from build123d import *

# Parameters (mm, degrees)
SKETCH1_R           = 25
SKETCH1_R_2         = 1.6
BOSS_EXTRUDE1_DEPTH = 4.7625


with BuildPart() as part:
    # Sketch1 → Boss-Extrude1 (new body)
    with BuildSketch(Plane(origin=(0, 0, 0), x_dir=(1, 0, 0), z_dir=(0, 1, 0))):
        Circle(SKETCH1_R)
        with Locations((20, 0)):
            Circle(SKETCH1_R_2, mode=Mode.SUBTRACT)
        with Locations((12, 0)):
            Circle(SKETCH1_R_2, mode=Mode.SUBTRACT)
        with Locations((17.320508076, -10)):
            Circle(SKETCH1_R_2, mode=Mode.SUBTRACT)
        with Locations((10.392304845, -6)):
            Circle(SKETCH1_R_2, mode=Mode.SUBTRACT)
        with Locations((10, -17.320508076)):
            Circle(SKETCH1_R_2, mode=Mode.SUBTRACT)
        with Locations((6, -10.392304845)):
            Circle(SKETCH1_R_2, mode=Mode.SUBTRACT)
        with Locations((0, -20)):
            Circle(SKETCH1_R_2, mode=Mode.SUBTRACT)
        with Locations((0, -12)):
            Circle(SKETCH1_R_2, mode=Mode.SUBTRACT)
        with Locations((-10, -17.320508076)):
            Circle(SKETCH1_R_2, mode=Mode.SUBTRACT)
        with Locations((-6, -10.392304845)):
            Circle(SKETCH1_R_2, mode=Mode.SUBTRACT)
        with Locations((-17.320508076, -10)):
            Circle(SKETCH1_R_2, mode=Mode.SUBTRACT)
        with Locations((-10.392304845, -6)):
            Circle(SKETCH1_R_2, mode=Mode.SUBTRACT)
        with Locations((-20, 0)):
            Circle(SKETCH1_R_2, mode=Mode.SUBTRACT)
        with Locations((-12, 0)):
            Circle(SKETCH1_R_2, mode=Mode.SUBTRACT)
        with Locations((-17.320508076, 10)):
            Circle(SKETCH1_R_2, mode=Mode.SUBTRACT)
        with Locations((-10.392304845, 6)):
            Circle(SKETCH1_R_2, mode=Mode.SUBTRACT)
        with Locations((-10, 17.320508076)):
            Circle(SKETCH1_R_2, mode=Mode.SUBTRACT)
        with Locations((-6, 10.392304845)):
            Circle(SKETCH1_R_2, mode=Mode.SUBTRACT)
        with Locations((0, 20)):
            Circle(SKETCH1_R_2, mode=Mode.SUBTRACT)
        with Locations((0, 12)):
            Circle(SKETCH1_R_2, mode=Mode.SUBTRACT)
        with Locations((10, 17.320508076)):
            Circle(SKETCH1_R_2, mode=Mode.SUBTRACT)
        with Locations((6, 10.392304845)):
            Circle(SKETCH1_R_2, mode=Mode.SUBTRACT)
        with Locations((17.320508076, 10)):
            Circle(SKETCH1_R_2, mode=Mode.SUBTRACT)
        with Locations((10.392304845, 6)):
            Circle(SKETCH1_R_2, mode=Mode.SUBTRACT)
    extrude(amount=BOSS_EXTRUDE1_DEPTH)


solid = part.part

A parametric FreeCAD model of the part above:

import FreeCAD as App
import Part
import Sketcher
from FreeCAD import Vector
Q = App.Units.Quantity

doc = App.newDocument("Part")
body = doc.addObject("PartDesign::Body", "Body")

sketch1 = body.newObject("Sketcher::SketchObject", "Sketch")
sketch1.AttachmentSupport = (doc.getObject("XZ_Plane"), [""])
sketch1.MapMode = "FlatFace"
sketch1.addGeometry([
    Part.Circle(Vector(0, 0, 0), Vector(0, 0, 1), 25),
    Part.Circle(Vector(-10, 17.3, 0), Vector(0, 0, 1), 1.6),
    Part.Circle(Vector(-17.3, 10, 0), Vector(0, 0, 1), 1.6),
    Part.Circle(Vector(-6, 10.4, 0), Vector(0, 0, 1), 1.6),
    Part.Circle(Vector(-10.4, 6, 0), Vector(0, 0, 1), 1.6),
    Part.Circle(Vector(0, 20, 0), Vector(0, 0, 1), 1.6),
    Part.Circle(Vector(10, 17.3, 0), Vector(0, 0, 1), 1.6),
    Part.Circle(Vector(0, 12, 0), Vector(0, 0, 1), 1.6),
    Part.Circle(Vector(6, 10.4, 0), Vector(0, 0, 1), 1.6),
    Part.Circle(Vector(10.4, 6, 0), Vector(0, 0, 1), 1.6),
    Part.Circle(Vector(17.3, 10, 0), Vector(0, 0, 1), 1.6),
    Part.Circle(Vector(-20, 0, 0), Vector(0, 0, 1), 1.6),
    Part.Circle(Vector(-12, 0, 0), Vector(0, 0, 1), 1.6),
    Part.Circle(Vector(-17.3, -10, 0), Vector(0, 0, 1), 1.6),
    Part.Circle(Vector(-10.4, -6, 0), Vector(0, 0, 1), 1.6),
    Part.Circle(Vector(-6, -10.4, 0), Vector(0, 0, 1), 1.6),
    Part.Circle(Vector(-10, -17.3, 0), Vector(0, 0, 1), 1.6),
    Part.Circle(Vector(10.4, -6, 0), Vector(0, 0, 1), 1.6),
    Part.Circle(Vector(6, -10.4, 0), Vector(0, 0, 1), 1.6),
    Part.Circle(Vector(12, 0, 0), Vector(0, 0, 1), 1.6),
    Part.Circle(Vector(20, 0, 0), Vector(0, 0, 1), 1.6),
    Part.Circle(Vector(17.3, -10, 0), Vector(0, 0, 1), 1.6),
    Part.Circle(Vector(0, -12, 0), Vector(0, 0, 1), 1.6),
    Part.Circle(Vector(0, -20, 0), Vector(0, 0, 1), 1.6),
    Part.Circle(Vector(10, -17.3, 0), Vector(0, 0, 1), 1.6),
], False)
sketch1.addConstraint([
    Sketcher.Constraint("Coincident", 0, 3, -1, 1),
    Sketcher.Constraint("Equal", 1, 2),
    Sketcher.Constraint("Equal", 2, 3),
    Sketcher.Constraint("Equal", 3, 4),
    Sketcher.Constraint("Equal", 4, 5),
    Sketcher.Constraint("Equal", 5, 6),
    Sketcher.Constraint("Equal", 6, 7),
    Sketcher.Constraint("Equal", 7, 8),
    Sketcher.Constraint("Equal", 8, 9),
    Sketcher.Constraint("Equal", 9, 10),
    Sketcher.Constraint("Equal", 10, 11),
    Sketcher.Constraint("Equal", 11, 12),
    Sketcher.Constraint("Equal", 12, 13),
    Sketcher.Constraint("Equal", 13, 14),
    Sketcher.Constraint("Equal", 14, 15),
    Sketcher.Constraint("Equal", 15, 16),
    Sketcher.Constraint("Equal", 16, 17),
    Sketcher.Constraint("Equal", 17, 18),
    Sketcher.Constraint("Equal", 18, 19),
    Sketcher.Constraint("Equal", 19, 20),
    Sketcher.Constraint("Equal", 20, 21),
    Sketcher.Constraint("Equal", 21, 22),
    Sketcher.Constraint("Equal", 22, 23),
    Sketcher.Constraint("Equal", 23, 24),
    Sketcher.Constraint("Symmetric", 10, 3, 13, 3, -1, 1),
    Sketcher.Constraint("Symmetric", 9, 3, 14, 3, -1, 1),
    Sketcher.Constraint("Symmetric", 8, 3, 15, 3, -1, 1),
    Sketcher.Constraint("Symmetric", 6, 3, 16, 3, -1, 1),
    Sketcher.Constraint("Symmetric", 4, 3, 17, 3, -1, 1),
    Sketcher.Constraint("Symmetric", 3, 3, 18, 3, -1, 1),
    Sketcher.Constraint("Symmetric", 12, 3, 19, 3, -1, 1),
    Sketcher.Constraint("Symmetric", 11, 3, 20, 3, -1, 1),
    Sketcher.Constraint("Symmetric", 2, 3, 21, 3, -1, 1),
    Sketcher.Constraint("Symmetric", 7, 3, 22, 3, -1, 1),
    Sketcher.Constraint("Symmetric", 5, 3, 23, 3, -1, 1),
    Sketcher.Constraint("Symmetric", 1, 3, 24, 3, -1, 1),
    Sketcher.Constraint("Symmetric", 1, 3, 6, 3, -2),
    Sketcher.Constraint("Symmetric", 3, 3, 8, 3, -2),
    Sketcher.Constraint("Symmetric", 4, 3, 9, 3, -2),
    Sketcher.Constraint("Symmetric", 2, 3, 10, 3, -2),
    Sketcher.Constraint("PointOnObject", 5, 3, -2),
    Sketcher.Constraint("PointOnObject", 7, 3, -2),
    Sketcher.Constraint("PointOnObject", 11, 3, -1),
    Sketcher.Constraint("PointOnObject", 12, 3, -1),
    Sketcher.Constraint("Diameter", 0, Q("50 mm")),
    Sketcher.Constraint("Diameter", 1, Q("3.2 mm")),
    Sketcher.Constraint("DistanceX", 1, 3, -1, 1, Q("10 mm")),
    Sketcher.Constraint("DistanceY", -1, 1, 2, 3, Q("10 mm")),
    Sketcher.Constraint("DistanceX", 3, 3, -1, 1, Q("6 mm")),
    Sketcher.Constraint("DistanceY", -1, 1, 4, 3, Q("6 mm")),
    Sketcher.Constraint("DistanceY", -1, 1, 5, 3, Q("20 mm")),
    Sketcher.Constraint("DistanceY", -1, 1, 7, 3, Q("12 mm")),
    Sketcher.Constraint("DistanceX", 11, 3, -1, 1, Q("20 mm")),
    Sketcher.Constraint("DistanceX", 12, 3, -1, 1, Q("12 mm")),
    Sketcher.Constraint("DistanceY", -1, 1, 1, 3, Q("17.320508 mm")),
    Sketcher.Constraint("DistanceX", 2, 3, -1, 1, Q("17.320508 mm")),
    Sketcher.Constraint("DistanceY", -1, 1, 3, 3, Q("10.392305 mm")),
    Sketcher.Constraint("DistanceX", 4, 3, -1, 1, Q("10.392305 mm")),
])
pad1 = body.newObject("PartDesign::Pad", "Pad")
pad1.Profile = sketch1
pad1.Length = 4.7625
pad1.Reversed = True

doc.recompute()
